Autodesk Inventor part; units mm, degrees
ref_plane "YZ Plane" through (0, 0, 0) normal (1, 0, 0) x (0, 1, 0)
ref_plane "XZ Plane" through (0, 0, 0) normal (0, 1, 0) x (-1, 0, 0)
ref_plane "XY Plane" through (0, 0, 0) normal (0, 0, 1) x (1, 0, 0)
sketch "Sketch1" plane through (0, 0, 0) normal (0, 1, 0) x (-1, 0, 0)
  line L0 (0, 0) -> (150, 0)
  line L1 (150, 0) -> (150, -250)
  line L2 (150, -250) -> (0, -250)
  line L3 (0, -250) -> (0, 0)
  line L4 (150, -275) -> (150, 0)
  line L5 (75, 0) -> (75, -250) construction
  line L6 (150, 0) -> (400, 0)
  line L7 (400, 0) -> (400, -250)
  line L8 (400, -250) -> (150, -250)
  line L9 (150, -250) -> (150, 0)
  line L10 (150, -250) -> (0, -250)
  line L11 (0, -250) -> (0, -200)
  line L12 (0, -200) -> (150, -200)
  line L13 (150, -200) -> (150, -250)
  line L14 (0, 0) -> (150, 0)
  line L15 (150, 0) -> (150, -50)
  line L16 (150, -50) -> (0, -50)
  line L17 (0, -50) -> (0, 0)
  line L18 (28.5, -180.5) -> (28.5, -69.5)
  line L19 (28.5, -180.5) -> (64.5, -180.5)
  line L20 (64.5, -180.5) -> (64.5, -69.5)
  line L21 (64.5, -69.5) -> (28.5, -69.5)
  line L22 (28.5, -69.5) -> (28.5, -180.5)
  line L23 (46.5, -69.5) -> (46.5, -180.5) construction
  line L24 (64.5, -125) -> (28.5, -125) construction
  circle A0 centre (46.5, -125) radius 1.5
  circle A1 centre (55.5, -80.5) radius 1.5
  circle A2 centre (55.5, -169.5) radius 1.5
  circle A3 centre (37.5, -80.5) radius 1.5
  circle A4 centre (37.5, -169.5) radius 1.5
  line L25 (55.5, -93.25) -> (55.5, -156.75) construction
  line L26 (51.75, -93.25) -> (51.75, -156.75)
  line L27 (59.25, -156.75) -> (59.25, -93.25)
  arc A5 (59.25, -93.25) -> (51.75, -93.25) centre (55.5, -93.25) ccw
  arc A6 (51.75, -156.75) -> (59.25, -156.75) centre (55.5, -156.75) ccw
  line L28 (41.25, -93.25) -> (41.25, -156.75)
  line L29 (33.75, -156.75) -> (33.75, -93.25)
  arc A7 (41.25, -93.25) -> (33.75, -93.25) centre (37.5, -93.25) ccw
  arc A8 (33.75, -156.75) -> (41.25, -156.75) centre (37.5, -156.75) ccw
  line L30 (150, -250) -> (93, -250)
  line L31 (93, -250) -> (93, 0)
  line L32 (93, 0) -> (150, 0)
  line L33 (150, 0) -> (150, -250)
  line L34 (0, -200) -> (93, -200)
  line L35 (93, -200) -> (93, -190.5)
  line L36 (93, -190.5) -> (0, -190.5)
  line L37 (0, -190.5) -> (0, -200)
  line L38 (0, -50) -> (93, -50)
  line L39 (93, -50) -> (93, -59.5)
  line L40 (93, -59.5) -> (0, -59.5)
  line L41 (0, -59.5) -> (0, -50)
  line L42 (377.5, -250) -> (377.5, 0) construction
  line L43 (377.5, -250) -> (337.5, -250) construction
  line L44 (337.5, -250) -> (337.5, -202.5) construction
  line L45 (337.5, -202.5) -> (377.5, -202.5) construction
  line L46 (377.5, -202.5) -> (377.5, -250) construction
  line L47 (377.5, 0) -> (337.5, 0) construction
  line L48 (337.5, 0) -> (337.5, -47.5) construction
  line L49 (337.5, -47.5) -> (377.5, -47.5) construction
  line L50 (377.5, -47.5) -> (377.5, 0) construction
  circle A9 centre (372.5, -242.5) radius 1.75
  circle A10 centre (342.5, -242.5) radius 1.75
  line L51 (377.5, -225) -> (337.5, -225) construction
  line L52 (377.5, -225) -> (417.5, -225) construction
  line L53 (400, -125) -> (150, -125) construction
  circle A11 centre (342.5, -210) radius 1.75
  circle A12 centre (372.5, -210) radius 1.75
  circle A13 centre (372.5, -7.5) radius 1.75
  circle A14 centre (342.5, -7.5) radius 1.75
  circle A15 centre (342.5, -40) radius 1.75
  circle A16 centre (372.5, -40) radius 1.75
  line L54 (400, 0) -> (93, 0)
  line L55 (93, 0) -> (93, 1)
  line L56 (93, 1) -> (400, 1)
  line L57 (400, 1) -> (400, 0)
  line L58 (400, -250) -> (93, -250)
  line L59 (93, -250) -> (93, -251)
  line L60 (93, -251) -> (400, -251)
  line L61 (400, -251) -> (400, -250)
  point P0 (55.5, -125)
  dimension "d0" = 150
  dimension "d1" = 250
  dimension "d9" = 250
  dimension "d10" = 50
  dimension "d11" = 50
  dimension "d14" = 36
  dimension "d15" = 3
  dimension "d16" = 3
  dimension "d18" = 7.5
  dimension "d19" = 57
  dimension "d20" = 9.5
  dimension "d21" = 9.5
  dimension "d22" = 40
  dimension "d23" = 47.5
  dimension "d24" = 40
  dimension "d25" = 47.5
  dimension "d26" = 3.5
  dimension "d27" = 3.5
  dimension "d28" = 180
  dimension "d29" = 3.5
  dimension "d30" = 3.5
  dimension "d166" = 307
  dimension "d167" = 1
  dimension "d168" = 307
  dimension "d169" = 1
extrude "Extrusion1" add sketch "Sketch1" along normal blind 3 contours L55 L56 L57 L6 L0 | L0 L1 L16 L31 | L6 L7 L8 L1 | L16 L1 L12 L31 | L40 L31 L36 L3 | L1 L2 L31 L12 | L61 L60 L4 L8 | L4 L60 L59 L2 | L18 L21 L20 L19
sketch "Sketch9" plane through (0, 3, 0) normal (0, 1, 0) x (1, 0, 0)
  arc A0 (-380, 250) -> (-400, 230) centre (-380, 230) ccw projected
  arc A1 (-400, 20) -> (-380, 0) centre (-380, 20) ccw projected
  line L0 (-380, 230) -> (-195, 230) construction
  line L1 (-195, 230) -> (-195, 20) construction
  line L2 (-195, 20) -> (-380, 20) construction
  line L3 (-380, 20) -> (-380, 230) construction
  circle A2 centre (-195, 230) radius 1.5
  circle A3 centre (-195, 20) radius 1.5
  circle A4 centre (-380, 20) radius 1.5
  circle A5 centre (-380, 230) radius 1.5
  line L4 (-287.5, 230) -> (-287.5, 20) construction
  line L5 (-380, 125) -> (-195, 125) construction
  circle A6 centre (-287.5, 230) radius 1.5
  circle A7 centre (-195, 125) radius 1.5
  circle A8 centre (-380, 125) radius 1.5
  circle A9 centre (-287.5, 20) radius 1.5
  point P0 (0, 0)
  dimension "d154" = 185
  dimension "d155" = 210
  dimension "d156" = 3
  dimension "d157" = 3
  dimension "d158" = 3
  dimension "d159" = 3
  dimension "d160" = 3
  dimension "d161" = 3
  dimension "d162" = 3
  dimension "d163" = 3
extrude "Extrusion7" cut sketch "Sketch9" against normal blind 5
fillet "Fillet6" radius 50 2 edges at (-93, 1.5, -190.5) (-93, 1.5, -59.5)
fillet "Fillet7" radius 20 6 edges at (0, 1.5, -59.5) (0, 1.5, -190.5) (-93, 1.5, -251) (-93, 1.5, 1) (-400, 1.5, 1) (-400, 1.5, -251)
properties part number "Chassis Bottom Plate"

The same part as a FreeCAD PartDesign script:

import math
import FreeCAD as App
import Part
import Sketcher
Q = App.Units.Quantity


def edges_at(feature, points):
    """Names of the edges that pass closest to the given points."""
    edges = feature.Shape.Edges
    near = lambda p: min(range(len(edges)), key=lambda i: edges[i].distToShape(Part.Vertex(*p))[0])
    return sorted({f"Edge{near(p) + 1}" for p in points})

doc = App.newDocument("Part")
body = doc.addObject("PartDesign::Body", "Body")

# Sketch on XZ plane
sketch1 = body.newObject("Sketcher::SketchObject", "Sketch")
sketch1.AttachmentSupport = (doc.getObject("XZ_Plane"), [""])
sketch1.MapMode = "FlatFace"
sketch1.addGeometry([
    Part.LineSegment(App.Vector(-93, 1, 0), App.Vector(-93, -59.5, 0)),  # 0
    Part.LineSegment(App.Vector(-93, -59.5, 0), App.Vector(0, -59.5, 0)),  # 1
    Part.LineSegment(App.Vector(0, -59.5, 0), App.Vector(0, -190.5, 0)),  # 2
    Part.LineSegment(App.Vector(0, -190.5, 0), App.Vector(-93, -190.5, 0)),  # 3
    Part.LineSegment(App.Vector(-93, -190.5, 0), App.Vector(-93, -251, 0)),  # 4
    Part.LineSegment(App.Vector(-93, -251, 0), App.Vector(-400, -251, 0)),  # 5
    Part.LineSegment(App.Vector(-400, -251, 0), App.Vector(-400, 1, 0)),  # 6
    Part.LineSegment(App.Vector(-400, 1, 0), App.Vector(-93, 1, 0)),  # 7
    Part.Circle(App.Vector(-372.5, -7.5, 0), App.Vector(0, 0, 1), 1.75),  # 8
    Part.Circle(App.Vector(-342.5, -242.5, 0), App.Vector(0, 0, 1), 1.75),  # 9
    Part.Circle(App.Vector(-372.5, -242.5, 0), App.Vector(0, 0, 1), 1.75),  # 10
    Part.Circle(App.Vector(-342.5, -210, 0), App.Vector(0, 0, 1), 1.75),  # 11
    Part.Circle(App.Vector(-372.5, -210, 0), App.Vector(0, 0, 1), 1.75),  # 12
    Part.Circle(App.Vector(-342.5, -40, 0), App.Vector(0, 0, 1), 1.75),  # 13
    Part.Circle(App.Vector(-372.5, -40, 0), App.Vector(0, 0, 1), 1.75),  # 14
    Part.Circle(App.Vector(-342.5, -7.5, 0), App.Vector(0, 0, 1), 1.75),  # 15
    Part.Circle(App.Vector(-55.5, -80.5, 0), App.Vector(0, 0, 1), 1.5),  # 16
    Part.LineSegment(App.Vector(-59.25, -93.25, 0), App.Vector(-59.25, -156.75, 0)),  # 17
    Part.ArcOfCircle(Part.Circle(App.Vector(-55.5, -156.75, 0), App.Vector(0, 0, 1), 3.75), math.radians(180), math.radians(360)),  # 18
    Part.LineSegment(App.Vector(-51.75, -156.75, 0), App.Vector(-51.75, -93.25, 0)),  # 19
    Part.ArcOfCircle(Part.Circle(App.Vector(-55.5, -93.25, 0), App.Vector(0, 0, 1), 3.75), math.radians(0), math.radians(180)),  # 20
    Part.Circle(App.Vector(-37.5, -80.5, 0), App.Vector(0, 0, 1), 1.5),  # 21
    Part.Circle(App.Vector(-37.5, -169.5, 0), App.Vector(0, 0, 1), 1.5),  # 22
    Part.Circle(App.Vector(-55.5, -169.5, 0), App.Vector(0, 0, 1), 1.5),  # 23
    Part.ArcOfCircle(Part.Circle(App.Vector(-37.5, -93.25, 0), App.Vector(0, 0, 1), 3.75), math.radians(0), math.radians(180)),  # 24
    Part.LineSegment(App.Vector(-41.25, -93.25, 0), App.Vector(-41.25, -156.75, 0)),  # 25
    Part.ArcOfCircle(Part.Circle(App.Vector(-37.5, -156.75, 0), App.Vector(0, 0, 1), 3.75), math.radians(180), math.radians(360)),  # 26
    Part.LineSegment(App.Vector(-33.75, -156.75, 0), App.Vector(-33.75, -93.25, 0)),  # 27
    Part.Circle(App.Vector(-46.5, -125, 0), App.Vector(0, 0, 1), 1.5),  # 28
], False)
sketch1.addConstraint([
    Sketcher.Constraint("Coincident", 0, 2, 1, 1),
    Sketcher.Constraint("Coincident", 1, 2, 2, 1),
    Sketcher.Constraint("Coincident", 2, 2, 3, 1),
    Sketcher.Constraint("Coincident", 3, 2, 4, 1),
    Sketcher.Constraint("Coincident", 4, 2, 5, 1),
    Sketcher.Constraint("Coincident", 5, 2, 6, 1),
    Sketcher.Constraint("Coincident", 6, 2, 7, 1),
    Sketcher.Constraint("Coincident", 7, 2, 0, 1),
    Sketcher.Constraint("Tangent", 17, 2, 18, 1),
    Sketcher.Constraint("Tangent", 18, 2, 19, 1),
    Sketcher.Constraint("Tangent", 19, 2, 20, 1),
    Sketcher.Constraint("Tangent", 20, 2, 17, 1),
    Sketcher.Constraint("Tangent", 24, 2, 25, 1),
    Sketcher.Constraint("Tangent", 25, 2, 26, 1),
    Sketcher.Constraint("Tangent", 26, 2, 27, 1),
    Sketcher.Constraint("Tangent", 27, 2, 24, 1),
    Sketcher.Constraint("Vertical", 0),
    Sketcher.Constraint("Horizontal", 1),
    Sketcher.Constraint("Vertical", 2),
    Sketcher.Constraint("Horizontal", 3),
    Sketcher.Constraint("Vertical", 4),
    Sketcher.Constraint("Horizontal", 5),
    Sketcher.Constraint("Vertical", 6),
    Sketcher.Constraint("Horizontal", 7),
    Sketcher.Constraint("Vertical", 17),
    Sketcher.Constraint("Vertical", 19),
    Sketcher.Constraint("Vertical", 25),
    Sketcher.Constraint("Vertical", 27),
    Sketcher.Constraint("Equal", 8, 9),
    Sketcher.Constraint("Equal", 9, 10),
    Sketcher.Constraint("Equal", 10, 11),
    Sketcher.Constraint("Equal", 11, 12),
    Sketcher.Constraint("Equal", 12, 13),
    Sketcher.Constraint("Equal", 13, 14),
    Sketcher.Constraint("Equal", 14, 15),
    Sketcher.Constraint("Equal", 16, 21),
    Sketcher.Constraint("Equal", 21, 22),
    Sketcher.Constraint("Equal", 22, 23),
    Sketcher.Constraint("Equal", 20, 24),
    Sketcher.Constraint("Equal", 23, 28),
    Sketcher.Constraint("PointOnObject", 1, 2, -2),
    Sketcher.Constraint("Horizontal", 9, 3, 10, 3),
    Sketcher.Constraint("Horizontal", 11, 3, 12, 3),
    Sketcher.Constraint("Horizontal", 13, 3, 14, 3),
    Sketcher.Constraint("Horizontal", 8, 3, 15, 3),
    Sketcher.Constraint("Horizontal", 16, 3, 21, 3),
    Sketcher.Constraint("Horizontal", 22, 3, 23, 3),
    Sketcher.Constraint("Horizontal", 20, 3, 24, 3),
    Sketcher.Constraint("Horizontal", 18, 3, 26, 3),
    Sketcher.Constraint("Vertical", 8, 3, 10, 3),
    Sketcher.Constraint("Vertical", 9, 3, 11, 3),
    Sketcher.Constraint("Vertical", 10, 3, 12, 3),
    Sketcher.Constraint("Vertical", 11, 3, 13, 3),
    Sketcher.Constraint("Vertical", 12, 3, 14, 3),
    Sketcher.Constraint("Vertical", 13, 3, 15, 3),
    Sketcher.Constraint("Vertical", 16, 3, 18, 3),
    Sketcher.Constraint("Vertical", 21, 3, 22, 3),
    Sketcher.Constraint("Vertical", 20, 3, 23, 3),
    Sketcher.Constraint("Vertical", 22, 3, 24, 3),
    Sketcher.Constraint("Vertical", 0, 2, 3, 2),
    Sketcher.Constraint("Equal", 0, 4),
    Sketcher.Constraint("Diameter", 16, Q("3 mm")),
    Sketcher.Constraint("Diameter", 8, Q("3.5 mm")),
    Sketcher.Constraint("DistanceX", 5, 2, 5, 1, Q("307 mm")),
    Sketcher.Constraint("Radius", 18, Q("3.75 mm")),
    Sketcher.Constraint("DistanceY", 13, 3, -1, 1, Q("40 mm")),
    Sketcher.Constraint("DistanceY", -1, 1, 6, 2, Q("1 mm")),
    Sketcher.Constraint("DistanceY", 8, 3, -1, 1, Q("7.5 mm")),
    Sketcher.Constraint("DistanceX", 1, 1, 1, 2, Q("93 mm")),
    Sketcher.Constraint("DistanceY", 2, 2, 2, 1, Q("131 mm")),
    Sketcher.Constraint("DistanceY", 6, 1, 6, 2, Q("252 mm")),
    Sketcher.Constraint("DistanceY", 17, 2, 17, 1, Q("63.5 mm")),
    Sketcher.Constraint("DistanceY", 11, 3, -1, 1, Q("210 mm")),
    Sketcher.Constraint("DistanceY", 28, 3, -1, 1, Q("125 mm")),
    Sketcher.Constraint("DistanceX", 8, 3, 9, 3, Q("30 mm")),
    Sketcher.Constraint("DistanceY", 9, 3, 8, 3, Q("235 mm")),
    Sketcher.Constraint("DistanceX", 13, 3, 16, 3, Q("287 mm")),
    Sketcher.Constraint("DistanceY", 16, 3, 15, 3, Q("73 mm")),
    Sketcher.Constraint("DistanceX", 16, 3, 21, 3, Q("18 mm")),
    Sketcher.Constraint("DistanceY", 22, 3, 21, 3, Q("89 mm")),
    Sketcher.Constraint("DistanceX", 18, 3, 28, 3, Q("9 mm")),
    Sketcher.Constraint("DistanceX", 8, 3, -1, 1, Q("372.5 mm")),
    Sketcher.Constraint("DistanceY", 18, 3, -1, 1, Q("156.75 mm")),
])
pad1 = body.newObject("PartDesign::Pad", "Pad")
pad1.Profile = sketch1
pad1.Length = 3
pad1.Reversed = True

# Sketch on XZ plane
sketch2 = body.newObject("Sketcher::SketchObject", "Sketch001")
sketch2.AttachmentSupport = (doc.getObject("XZ_Plane"), [""])
sketch2.MapMode = "FlatFace"
sketch2.AttachmentOffset = App.Placement(App.Vector(0, 0, -3), App.Rotation())
sketch2.addGeometry([
    Part.Circle(App.Vector(-195, -230, 0), App.Vector(0, 0, 1), 1.5),  # 0
    Part.Circle(App.Vector(-195, -20, 0), App.Vector(0, 0, 1), 1.5),  # 1
    Part.Circle(App.Vector(-380, -20, 0), App.Vector(0, 0, 1), 1.5),  # 2
    Part.Circle(App.Vector(-380, -230, 0), App.Vector(0, 0, 1), 1.5),  # 3
    Part.Circle(App.Vector(-287.5, -230, 0), App.Vector(0, 0, 1), 1.5),  # 4
    Part.Circle(App.Vector(-195, -125, 0), App.Vector(0, 0, 1), 1.5),  # 5
    Part.Circle(App.Vector(-380, -125, 0), App.Vector(0, 0, 1), 1.5),  # 6
    Part.Circle(App.Vector(-287.5, -20, 0), App.Vector(0, 0, 1), 1.5),  # 7
], False)
sketch2.addConstraint([
    Sketcher.Constraint("Equal", 0, 1),
    Sketcher.Constraint("Equal", 1, 2),
    Sketcher.Constraint("Equal", 2, 3),
    Sketcher.Constraint("Equal", 3, 4),
    Sketcher.Constraint("Equal", 4, 5),
    Sketcher.Constraint("Equal", 5, 6),
    Sketcher.Constraint("Equal", 6, 7),
    Sketcher.Constraint("Horizontal", 1, 3, 2, 3),
    Sketcher.Constraint("Horizontal", 0, 3, 3, 3),
    Sketcher.Constraint("Horizontal", 3, 3, 4, 3),
    Sketcher.Constraint("Horizontal", 5, 3, 6, 3),
    Sketcher.Constraint("Horizontal", 2, 3, 7, 3),
    Sketcher.Constraint("Vertical", 0, 3, 1, 3),
    Sketcher.Constraint("Vertical", 2, 3, 3, 3),
    Sketcher.Constraint("Vertical", 1, 3, 5, 3),
    Sketcher.Constraint("Vertical", 3, 3, 6, 3),
    Sketcher.Constraint("Vertical", 4, 3, 7, 3),
    Sketcher.Constraint("Diameter", 0, Q("3 mm")),
    Sketcher.Constraint("DistanceY", 0, 3, 1, 3, Q("210 mm")),
    Sketcher.Constraint("DistanceX", 2, 3, 1, 3, Q("185 mm")),
    Sketcher.Constraint("DistanceX", 0, 3, -1, 1, Q("195 mm")),
    Sketcher.Constraint("DistanceY", 0, 3, -1, 1, Q("230 mm")),
    Sketcher.Constraint("DistanceY", 5, 3, -1, 1, Q("125 mm")),
    Sketcher.Constraint("DistanceX", 4, 3, -1, 1, Q("287.5 mm")),
])
pocket1 = body.newObject("PartDesign::Pocket", "Pocket")
pocket1.Profile = sketch2
pocket1.Length = 5
pocket1.Reversed = True
doc.recompute()

fillet = body.newObject("PartDesign::Fillet", "Fillet")
fillet.Base = (pocket1, edges_at(pocket1, [(-93, 1.5, -190.5), (-93, 1.5, -59.5)]))
fillet.Radius = 50
doc.recompute()

fillet2 = body.newObject("PartDesign::Fillet", "Fillet001")
fillet2.Base = (fillet, edges_at(fillet, [
    (0, 1.5, -59.5),
    (0, 1.5, -190.5),
    (-93, 1.5, -251),
    (-93, 1.5, 1),
    (-400, 1.5, 1),
    (-400, 1.5, -251),
]))
fillet2.Radius = 20

doc.recompute()
